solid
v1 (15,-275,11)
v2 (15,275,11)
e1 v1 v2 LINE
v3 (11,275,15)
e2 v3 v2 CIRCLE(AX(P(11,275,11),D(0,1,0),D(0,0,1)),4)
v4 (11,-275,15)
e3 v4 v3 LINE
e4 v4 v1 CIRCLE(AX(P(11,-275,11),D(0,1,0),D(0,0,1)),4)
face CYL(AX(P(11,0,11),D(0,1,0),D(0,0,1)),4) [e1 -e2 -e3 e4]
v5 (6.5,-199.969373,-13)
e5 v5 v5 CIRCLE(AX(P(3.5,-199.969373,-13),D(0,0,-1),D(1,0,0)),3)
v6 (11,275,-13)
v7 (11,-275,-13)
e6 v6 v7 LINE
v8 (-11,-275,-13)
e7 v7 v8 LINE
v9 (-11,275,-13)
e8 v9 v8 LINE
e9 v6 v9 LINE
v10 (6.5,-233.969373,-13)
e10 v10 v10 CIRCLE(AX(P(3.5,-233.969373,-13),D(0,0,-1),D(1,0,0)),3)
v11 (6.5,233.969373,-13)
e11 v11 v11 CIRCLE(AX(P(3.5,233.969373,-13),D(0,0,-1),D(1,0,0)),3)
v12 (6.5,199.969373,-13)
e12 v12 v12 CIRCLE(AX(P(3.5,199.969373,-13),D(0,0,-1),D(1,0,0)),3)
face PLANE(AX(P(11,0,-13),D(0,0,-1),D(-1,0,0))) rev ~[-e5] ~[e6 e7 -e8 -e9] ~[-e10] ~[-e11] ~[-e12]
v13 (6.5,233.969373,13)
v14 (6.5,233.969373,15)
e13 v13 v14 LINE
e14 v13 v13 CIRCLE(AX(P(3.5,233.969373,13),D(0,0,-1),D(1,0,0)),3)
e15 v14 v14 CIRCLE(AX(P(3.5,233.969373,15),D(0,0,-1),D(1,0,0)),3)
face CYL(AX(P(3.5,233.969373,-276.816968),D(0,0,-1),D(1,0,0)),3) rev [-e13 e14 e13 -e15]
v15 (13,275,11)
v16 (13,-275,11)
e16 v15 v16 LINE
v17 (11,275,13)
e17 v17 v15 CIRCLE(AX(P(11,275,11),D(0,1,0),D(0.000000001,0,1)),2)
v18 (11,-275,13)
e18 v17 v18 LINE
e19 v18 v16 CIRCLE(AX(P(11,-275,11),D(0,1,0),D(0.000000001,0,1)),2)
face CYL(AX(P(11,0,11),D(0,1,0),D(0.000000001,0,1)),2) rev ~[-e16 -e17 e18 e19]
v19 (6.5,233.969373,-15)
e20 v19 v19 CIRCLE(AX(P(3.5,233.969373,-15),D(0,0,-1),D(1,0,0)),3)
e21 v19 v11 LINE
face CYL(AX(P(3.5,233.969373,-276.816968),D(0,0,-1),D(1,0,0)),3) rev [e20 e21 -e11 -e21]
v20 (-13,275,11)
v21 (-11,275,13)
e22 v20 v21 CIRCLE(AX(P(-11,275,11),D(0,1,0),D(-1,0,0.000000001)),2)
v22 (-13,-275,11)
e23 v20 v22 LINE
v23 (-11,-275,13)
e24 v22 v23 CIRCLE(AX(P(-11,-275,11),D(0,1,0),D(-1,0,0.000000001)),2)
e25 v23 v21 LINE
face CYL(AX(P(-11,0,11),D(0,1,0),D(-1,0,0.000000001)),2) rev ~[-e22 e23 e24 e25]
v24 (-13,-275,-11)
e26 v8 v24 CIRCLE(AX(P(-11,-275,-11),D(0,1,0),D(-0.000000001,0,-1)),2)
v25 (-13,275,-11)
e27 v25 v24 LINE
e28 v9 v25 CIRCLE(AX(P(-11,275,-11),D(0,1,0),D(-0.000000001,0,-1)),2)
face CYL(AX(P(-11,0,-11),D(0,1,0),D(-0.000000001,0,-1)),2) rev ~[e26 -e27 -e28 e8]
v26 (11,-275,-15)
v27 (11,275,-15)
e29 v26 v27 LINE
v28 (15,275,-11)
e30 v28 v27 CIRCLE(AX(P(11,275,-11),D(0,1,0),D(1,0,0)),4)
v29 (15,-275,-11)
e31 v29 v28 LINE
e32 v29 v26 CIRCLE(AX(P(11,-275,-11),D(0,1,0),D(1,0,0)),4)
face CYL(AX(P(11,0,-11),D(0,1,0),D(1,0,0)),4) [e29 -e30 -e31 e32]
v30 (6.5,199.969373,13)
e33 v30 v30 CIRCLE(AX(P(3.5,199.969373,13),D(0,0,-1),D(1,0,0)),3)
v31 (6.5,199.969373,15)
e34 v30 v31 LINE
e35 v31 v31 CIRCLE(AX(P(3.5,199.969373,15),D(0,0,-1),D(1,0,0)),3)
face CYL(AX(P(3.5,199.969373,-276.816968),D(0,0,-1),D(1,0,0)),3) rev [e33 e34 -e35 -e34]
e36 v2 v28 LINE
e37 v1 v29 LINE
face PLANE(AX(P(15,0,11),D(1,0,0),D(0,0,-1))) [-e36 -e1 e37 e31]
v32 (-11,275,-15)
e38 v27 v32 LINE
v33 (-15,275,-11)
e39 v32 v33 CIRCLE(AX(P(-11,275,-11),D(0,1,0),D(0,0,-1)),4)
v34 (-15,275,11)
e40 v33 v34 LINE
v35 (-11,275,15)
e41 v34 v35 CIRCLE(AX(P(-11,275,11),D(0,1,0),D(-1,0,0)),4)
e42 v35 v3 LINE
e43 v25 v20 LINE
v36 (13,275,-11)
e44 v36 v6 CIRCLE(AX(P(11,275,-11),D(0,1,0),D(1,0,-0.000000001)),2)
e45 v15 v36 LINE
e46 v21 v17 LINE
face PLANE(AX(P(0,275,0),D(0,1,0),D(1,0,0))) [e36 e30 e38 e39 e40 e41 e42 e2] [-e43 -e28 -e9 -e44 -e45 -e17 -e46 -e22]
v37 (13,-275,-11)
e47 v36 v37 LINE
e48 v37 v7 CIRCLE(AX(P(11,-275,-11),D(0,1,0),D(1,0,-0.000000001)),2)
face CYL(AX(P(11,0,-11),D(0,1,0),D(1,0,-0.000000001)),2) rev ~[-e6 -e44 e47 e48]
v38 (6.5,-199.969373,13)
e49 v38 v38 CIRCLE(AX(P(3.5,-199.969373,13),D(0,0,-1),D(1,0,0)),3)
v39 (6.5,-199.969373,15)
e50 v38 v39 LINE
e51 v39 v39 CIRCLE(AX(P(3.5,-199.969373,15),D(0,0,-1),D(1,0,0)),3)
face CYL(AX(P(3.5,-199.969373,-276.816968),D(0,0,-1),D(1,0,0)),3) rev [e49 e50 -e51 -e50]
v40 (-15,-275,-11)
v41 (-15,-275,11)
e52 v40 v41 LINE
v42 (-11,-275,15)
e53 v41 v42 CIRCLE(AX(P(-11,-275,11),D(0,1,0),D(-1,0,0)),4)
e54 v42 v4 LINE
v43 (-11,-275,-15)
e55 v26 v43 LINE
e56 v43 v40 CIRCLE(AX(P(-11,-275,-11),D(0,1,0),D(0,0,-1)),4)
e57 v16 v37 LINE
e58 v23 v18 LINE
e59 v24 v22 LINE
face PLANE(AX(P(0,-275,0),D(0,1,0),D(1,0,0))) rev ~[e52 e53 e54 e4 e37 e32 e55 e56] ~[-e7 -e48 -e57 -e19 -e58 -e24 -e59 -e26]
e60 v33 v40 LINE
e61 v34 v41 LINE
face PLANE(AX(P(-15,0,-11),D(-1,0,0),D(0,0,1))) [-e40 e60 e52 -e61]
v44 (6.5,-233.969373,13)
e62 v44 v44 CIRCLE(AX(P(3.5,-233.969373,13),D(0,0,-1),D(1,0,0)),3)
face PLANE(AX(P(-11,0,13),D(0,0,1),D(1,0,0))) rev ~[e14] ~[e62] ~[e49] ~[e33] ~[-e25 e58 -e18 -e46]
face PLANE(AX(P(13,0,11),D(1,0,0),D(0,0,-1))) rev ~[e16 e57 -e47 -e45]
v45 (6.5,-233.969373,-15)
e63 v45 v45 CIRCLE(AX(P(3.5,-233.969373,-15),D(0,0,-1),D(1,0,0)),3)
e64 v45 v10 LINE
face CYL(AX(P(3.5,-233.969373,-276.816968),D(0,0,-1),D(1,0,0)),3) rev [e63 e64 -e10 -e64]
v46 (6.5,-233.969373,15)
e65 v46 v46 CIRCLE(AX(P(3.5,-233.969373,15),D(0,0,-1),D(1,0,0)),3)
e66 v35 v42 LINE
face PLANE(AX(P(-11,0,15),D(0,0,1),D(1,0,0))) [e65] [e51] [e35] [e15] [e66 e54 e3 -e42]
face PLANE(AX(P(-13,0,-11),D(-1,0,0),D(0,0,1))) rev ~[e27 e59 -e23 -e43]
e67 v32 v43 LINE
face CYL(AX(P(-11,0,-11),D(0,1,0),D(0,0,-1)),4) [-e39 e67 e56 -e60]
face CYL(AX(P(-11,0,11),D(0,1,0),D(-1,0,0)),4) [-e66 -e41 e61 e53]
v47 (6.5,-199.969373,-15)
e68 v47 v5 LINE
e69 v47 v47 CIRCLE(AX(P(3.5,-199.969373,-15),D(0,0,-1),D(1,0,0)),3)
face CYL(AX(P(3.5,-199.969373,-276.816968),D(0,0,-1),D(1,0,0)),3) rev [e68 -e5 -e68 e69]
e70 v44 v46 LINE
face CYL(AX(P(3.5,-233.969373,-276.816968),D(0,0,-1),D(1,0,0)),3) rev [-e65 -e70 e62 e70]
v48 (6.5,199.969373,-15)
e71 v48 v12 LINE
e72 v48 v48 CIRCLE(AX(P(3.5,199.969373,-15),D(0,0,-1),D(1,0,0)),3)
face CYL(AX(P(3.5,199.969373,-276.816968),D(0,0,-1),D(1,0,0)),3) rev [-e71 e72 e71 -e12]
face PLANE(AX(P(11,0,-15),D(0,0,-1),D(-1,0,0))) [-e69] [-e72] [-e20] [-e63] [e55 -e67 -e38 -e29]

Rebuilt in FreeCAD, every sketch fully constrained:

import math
import FreeCAD as App
import Part
import Sketcher
from FreeCAD import Vector

doc = App.newDocument("Part")
body = doc.addObject("PartDesign::Body", "Body")

sketch1 = body.newObject("Sketcher::SketchObject", "Sketch")
sketch1.AttachmentSupport = (doc.getObject("XZ_Plane"), [""])
sketch1.MapMode = "FlatFace"
sketch1.addGeometry([
    Part.LineSegment(Vector(-11, 15, 0), Vector(11, 15, 0)),
    Part.ArcOfCircle(Part.Circle(Vector(11, 11, 0), Vector(0, 0, 1), 4), math.radians(0), math.radians(90)),
    Part.LineSegment(Vector(15, 11, 0), Vector(15, -11, 0)),
    Part.ArcOfCircle(Part.Circle(Vector(11, -11, 0), Vector(0, 0, 1), 4), math.radians(-90), math.radians(0)),
    Part.LineSegment(Vector(11, -15, 0), Vector(-11, -15, 0)),
    Part.ArcOfCircle(Part.Circle(Vector(-11, -11, 0), Vector(0, 0, 1), 4), math.radians(180), math.radians(270)),
    Part.LineSegment(Vector(-15, -11, 0), Vector(-15, 11, 0)),
    Part.ArcOfCircle(Part.Circle(Vector(-11, 11, 0), Vector(0, 0, 1), 4), math.radians(90), math.radians(180)),
    Part.LineSegment(Vector(11, 13, 0), Vector(-11, 13, 0)),
    Part.ArcOfCircle(Part.Circle(Vector(-11, 11, 0), Vector(0, 0, 1), 2), math.radians(90), math.radians(180)),
    Part.LineSegment(Vector(-13, 11, 0), Vector(-13, -11, 0)),
    Part.ArcOfCircle(Part.Circle(Vector(-11, -11, 0), Vector(0, 0, 1), 2), math.radians(-180), math.radians(-90)),
    Part.LineSegment(Vector(-11, -13, 0), Vector(11, -13, 0)),
    Part.ArcOfCircle(Part.Circle(Vector(11, -11, 0), Vector(0, 0, 1), 2), math.radians(-90), math.radians(0)),
    Part.LineSegment(Vector(13, -11, 0), Vector(13, 11, 0)),
    Part.ArcOfCircle(Part.Circle(Vector(11, 11, 0), Vector(0, 0, 1), 2), math.radians(0), math.radians(90)),
], False)
sketch1.addConstraint([
    Sketcher.Constraint("Tangent", 0, 2, 1, 2),
    Sketcher.Constraint("Tangent", 1, 1, 2, 1),
    Sketcher.Constraint("Tangent", 2, 2, 3, 2),
    Sketcher.Constraint("Tangent", 3, 1, 4, 1),
    Sketcher.Constraint("Tangent", 4, 2, 5, 2),
    Sketcher.Constraint("Tangent", 5, 1, 6, 1),
    Sketcher.Constraint("Tangent", 6, 2, 7, 2),
    Sketcher.Constraint("Tangent", 7, 1, 0, 1),
    Sketcher.Constraint("Tangent", 8, 2, 9, 1),
    Sketcher.Constraint("Tangent", 9, 2, 10, 1),
    Sketcher.Constraint("Tangent", 10, 2, 11, 1),
    Sketcher.Constraint("Tangent", 11, 2, 12, 1),
    Sketcher.Constraint("Tangent", 12, 2, 13, 1),
    Sketcher.Constraint("Tangent", 13, 2, 14, 1),
    Sketcher.Constraint("Tangent", 14, 2, 15, 1),
    Sketcher.Constraint("Tangent", 15, 2, 8, 1),
    Sketcher.Constraint("Horizontal", 0),
    Sketcher.Constraint("Vertical", 2),
    Sketcher.Constraint("Horizontal", 4),
    Sketcher.Constraint("Vertical", 6),
    Sketcher.Constraint("Horizontal", 8),
    Sketcher.Constraint("Vertical", 10),
    Sketcher.Constraint("Horizontal", 12),
    Sketcher.Constraint("Vertical", 14),
    Sketcher.Constraint("Coincident", 9, 3, 7, 3),
    Sketcher.Constraint("Coincident", 11, 3, 5, 3),
    Sketcher.Constraint("Coincident", 13, 3, 3, 3),
    Sketcher.Constraint("Equal", 1, 3),
    Sketcher.Constraint("Equal", 3, 5),
    Sketcher.Constraint("Equal", 5, 7),
    Sketcher.Constraint("Equal", 13, 15),
    Sketcher.Constraint("Symmetric", 1, 3, 5, 3, -1, 1),
    Sketcher.Constraint("Equal", 12, 2),
    Sketcher.Constraint("Radius", 1, 4.0),
    Sketcher.Constraint("Radius", 9, 2.0),
    Sketcher.Constraint("DistanceX", 0, 1, 0, 2, 22.0),
])
pad1 = body.newObject("PartDesign::Pad", "Pad")
pad1.Profile = sketch1
pad1.Length = 550
pad1.Midplane = True

sketch2 = body.newObject("Sketcher::SketchObject", "Sketch001")
sketch2.AttachmentSupport = (doc.getObject("XY_Plane"), [""])
sketch2.MapMode = "FlatFace"
sketch2.addGeometry([
    Part.Circle(Vector(3.5, 234, 0), Vector(0, 0, 1), 3),
    Part.Circle(Vector(3.5, 200, 0), Vector(0, 0, 1), 3),
    Part.Circle(Vector(3.5, -200, 0), Vector(0, 0, 1), 3),
    Part.Circle(Vector(3.5, -234, 0), Vector(0, 0, 1), 3),
], False)
sketch2.addConstraint([
    Sketcher.Constraint("Equal", 0, 1),
    Sketcher.Constraint("Equal", 1, 2),
    Sketcher.Constraint("Equal", 2, 3),
    Sketcher.Constraint("Symmetric", 1, 3, 2, 3, -1),
    Sketcher.Constraint("Symmetric", 0, 3, 3, 3, -1),
    Sketcher.Constraint("Vertical", 0, 3, 1, 3),
    Sketcher.Constraint("Diameter", 0, 6.0),
    Sketcher.Constraint("DistanceY", 1, 3, 0, 3, 34.0),
    Sketcher.Constraint("DistanceX", -1, 1, 0, 3, 3.5),
    Sketcher.Constraint("DistanceY", -1, 1, 0, 3, 233.969373),
])
pocket1 = body.newObject("PartDesign::Pocket", "Pocket")
pocket1.Profile = sketch2
pocket1.Type = "ThroughAll"
pocket1.Midplane = True

doc.recompute()
